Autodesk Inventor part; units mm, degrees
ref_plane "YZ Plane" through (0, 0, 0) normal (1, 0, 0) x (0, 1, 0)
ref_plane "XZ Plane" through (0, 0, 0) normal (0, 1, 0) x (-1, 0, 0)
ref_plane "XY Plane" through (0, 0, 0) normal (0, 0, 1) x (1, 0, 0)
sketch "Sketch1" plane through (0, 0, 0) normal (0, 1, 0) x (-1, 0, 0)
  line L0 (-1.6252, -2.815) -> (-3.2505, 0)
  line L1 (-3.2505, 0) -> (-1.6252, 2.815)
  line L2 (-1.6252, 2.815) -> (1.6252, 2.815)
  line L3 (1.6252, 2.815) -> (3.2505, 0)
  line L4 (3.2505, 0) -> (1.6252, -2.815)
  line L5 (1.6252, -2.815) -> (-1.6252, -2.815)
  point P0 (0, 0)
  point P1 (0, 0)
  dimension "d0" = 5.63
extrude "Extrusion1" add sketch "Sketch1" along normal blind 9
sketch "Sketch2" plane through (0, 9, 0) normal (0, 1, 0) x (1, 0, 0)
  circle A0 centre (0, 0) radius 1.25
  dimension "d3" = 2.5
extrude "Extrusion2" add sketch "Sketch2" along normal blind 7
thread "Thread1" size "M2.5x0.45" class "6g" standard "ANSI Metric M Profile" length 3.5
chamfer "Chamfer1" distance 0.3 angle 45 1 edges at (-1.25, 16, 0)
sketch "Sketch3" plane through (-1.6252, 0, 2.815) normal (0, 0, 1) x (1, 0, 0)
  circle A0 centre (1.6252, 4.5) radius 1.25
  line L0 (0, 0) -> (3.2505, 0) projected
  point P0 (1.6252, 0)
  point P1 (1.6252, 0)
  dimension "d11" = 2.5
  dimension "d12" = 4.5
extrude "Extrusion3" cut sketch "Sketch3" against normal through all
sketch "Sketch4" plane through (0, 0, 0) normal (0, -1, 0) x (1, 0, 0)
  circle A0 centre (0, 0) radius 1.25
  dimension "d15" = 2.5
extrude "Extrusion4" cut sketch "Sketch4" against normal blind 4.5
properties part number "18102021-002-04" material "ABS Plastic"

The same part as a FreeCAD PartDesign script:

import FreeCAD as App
import Part
import Sketcher
Q = App.Units.Quantity


def edges_at(feature, points):
    """Names of the edges that pass closest to the given points."""
    edges = feature.Shape.Edges
    near = lambda p: min(range(len(edges)), key=lambda i: edges[i].distToShape(Part.Vertex(*p))[0])
    return sorted({f"Edge{near(p) + 1}" for p in points})


def add_polygon(sketch, points):
    """Adds a closed chain of lines whose ends are joined by coincident constraints."""
    first, n = sketch.GeometryCount, len(points)
    for a, b in zip(points, points[1:] + points[:1]):
        sketch.addGeometry(Part.LineSegment(App.Vector(*a, 0), App.Vector(*b, 0)), False)
    for i in range(n):
        sketch.addConstraint(Sketcher.Constraint("Coincident", first + i, 2, first + (i + 1) % n, 1))

doc = App.newDocument("Part")
params = doc.addObject("Spreadsheet::Sheet", "Params")
for row, (alias, value) in enumerate([
    ("pad1_length", "9 mm"),
    ("sketch2_diameter", "2.5 mm"),
    ("pad2_length", "7 mm"),
    ("chamfer_size", "0.3 mm"),
    ("sketch3_diameter", "2.5 mm"),
    ("sketch4_diameter", "2.5 mm"),
    ("pocket2_length", "4.5 mm"),
], start=1):
    params.set(f"A{row}", alias)
    params.set(f"B{row}", "=" + value)
    params.setAlias(f"B{row}", alias)

body = doc.addObject("PartDesign::Body", "Body")

# Sketch on XZ plane
sketch1 = doc.addObject("Sketcher::SketchObject", "Sketch")
body.addObject(sketch1)
sketch1.AttachmentSupport = (doc.XZ_Plane, [""])
sketch1.MapMode = "FlatFace"
add_polygon(sketch1, [(3.2505, 0), (1.6252, -2.815), (-1.6252, -2.815), (-3.2505, 0), (-1.6252, 2.815), (1.6252, 2.815)])  # lines 0-5
sketch1.addConstraint([
    Sketcher.Constraint("Horizontal", 1),
    Sketcher.Constraint("Horizontal", 4),
    Sketcher.Constraint("Symmetric", 0, 2, 3, 2, -1, 1),
    Sketcher.Constraint("Symmetric", 2, 2, 5, 2, -1, 1),
    Sketcher.Constraint("PointOnObject", 2, 2, -1),
    Sketcher.Constraint("Parallel", 2, 5),
    Sketcher.Constraint("Vertical", 1, 2, 3, 2),
    Sketcher.Constraint("Angle", 0, Q("-120.001 deg")),
    Sketcher.Constraint("DistanceY", 1, 2, 3, 2, 5.63),
    Sketcher.Constraint("DistanceX", 1, 2, 1, 1, 3.2504),
])
pad1 = doc.addObject("PartDesign::Pad", "Pad")
body.addObject(pad1)
pad1.Profile = sketch1
pad1.setExpression("Length", "Params.pad1_length")
pad1.Reversed = True

# Sketch on XZ plane
sketch2 = doc.addObject("Sketcher::SketchObject", "Sketch001")
body.addObject(sketch2)
sketch2.AttachmentSupport = (doc.XZ_Plane, [""])
sketch2.MapMode = "FlatFace"
sketch2.AttachmentOffset = App.Placement(App.Vector(0, 0, -9), App.Rotation())
sketch2.addGeometry(Part.Circle(App.Vector(0, 0, 0), App.Vector(0, 0, 1), 1.25), False)
sketch2.addConstraint([
    Sketcher.Constraint("Coincident", 0, 3, -1, 1),
    Sketcher.Constraint("Diameter", 0, 2.5),
])
sketch2.setExpression("Constraints[1]", "Params.sketch2_diameter")
pad2 = doc.addObject("PartDesign::Pad", "Pad001")
body.addObject(pad2)
pad2.Profile = sketch2
pad2.setExpression("Length", "Params.pad2_length")
pad2.Reversed = True
doc.recompute()

chamfer = doc.addObject("PartDesign::Chamfer", "Chamfer")
body.addObject(chamfer)
chamfer.Base = (pad2, edges_at(pad2, [(-1.25, 16, 0)]))
chamfer.setExpression("Size", "Params.chamfer_size")

# Sketch on XY plane
sketch3 = doc.addObject("Sketcher::SketchObject", "Sketch002")
body.addObject(sketch3)
sketch3.AttachmentSupport = (doc.XY_Plane, [""])
sketch3.MapMode = "FlatFace"
sketch3.AttachmentOffset = App.Placement(App.Vector(0, 0, 2.815), App.Rotation())
sketch3.addGeometry(Part.Circle(App.Vector(0, 4.5, 0), App.Vector(0, 0, 1), 1.25), False)
sketch3.addConstraint([
    Sketcher.Constraint("PointOnObject", 0, 3, -2),
    Sketcher.Constraint("Diameter", 0, 2.5),
    Sketcher.Constraint("DistanceY", -1, 1, 0, 3, 4.5),
])
sketch3.setExpression("Constraints[1]", "Params.sketch3_diameter")
pocket1 = doc.addObject("PartDesign::Pocket", "Pocket")
body.addObject(pocket1)
pocket1.Profile = sketch3
pocket1.Type = "ThroughAll"

# Sketch on XZ plane
sketch4 = doc.addObject("Sketcher::SketchObject", "Sketch003")
body.addObject(sketch4)
sketch4.AttachmentSupport = (doc.XZ_Plane, [""])
sketch4.MapMode = "FlatFace"
sketch4.addGeometry(Part.Circle(App.Vector(0, 0, 0), App.Vector(0, 0, 1), 1.25), False)
sketch4.addConstraint([
    Sketcher.Constraint("Coincident", 0, 3, -1, 1),
    Sketcher.Constraint("Diameter", 0, 2.5),
])
sketch4.setExpression("Constraints[1]", "Params.sketch4_diameter")
pocket2 = doc.addObject("PartDesign::Pocket", "Pocket001")
body.addObject(pocket2)
pocket2.Profile = sketch4
pocket2.setExpression("Length", "Params.pocket2_length")

doc.recompute()
